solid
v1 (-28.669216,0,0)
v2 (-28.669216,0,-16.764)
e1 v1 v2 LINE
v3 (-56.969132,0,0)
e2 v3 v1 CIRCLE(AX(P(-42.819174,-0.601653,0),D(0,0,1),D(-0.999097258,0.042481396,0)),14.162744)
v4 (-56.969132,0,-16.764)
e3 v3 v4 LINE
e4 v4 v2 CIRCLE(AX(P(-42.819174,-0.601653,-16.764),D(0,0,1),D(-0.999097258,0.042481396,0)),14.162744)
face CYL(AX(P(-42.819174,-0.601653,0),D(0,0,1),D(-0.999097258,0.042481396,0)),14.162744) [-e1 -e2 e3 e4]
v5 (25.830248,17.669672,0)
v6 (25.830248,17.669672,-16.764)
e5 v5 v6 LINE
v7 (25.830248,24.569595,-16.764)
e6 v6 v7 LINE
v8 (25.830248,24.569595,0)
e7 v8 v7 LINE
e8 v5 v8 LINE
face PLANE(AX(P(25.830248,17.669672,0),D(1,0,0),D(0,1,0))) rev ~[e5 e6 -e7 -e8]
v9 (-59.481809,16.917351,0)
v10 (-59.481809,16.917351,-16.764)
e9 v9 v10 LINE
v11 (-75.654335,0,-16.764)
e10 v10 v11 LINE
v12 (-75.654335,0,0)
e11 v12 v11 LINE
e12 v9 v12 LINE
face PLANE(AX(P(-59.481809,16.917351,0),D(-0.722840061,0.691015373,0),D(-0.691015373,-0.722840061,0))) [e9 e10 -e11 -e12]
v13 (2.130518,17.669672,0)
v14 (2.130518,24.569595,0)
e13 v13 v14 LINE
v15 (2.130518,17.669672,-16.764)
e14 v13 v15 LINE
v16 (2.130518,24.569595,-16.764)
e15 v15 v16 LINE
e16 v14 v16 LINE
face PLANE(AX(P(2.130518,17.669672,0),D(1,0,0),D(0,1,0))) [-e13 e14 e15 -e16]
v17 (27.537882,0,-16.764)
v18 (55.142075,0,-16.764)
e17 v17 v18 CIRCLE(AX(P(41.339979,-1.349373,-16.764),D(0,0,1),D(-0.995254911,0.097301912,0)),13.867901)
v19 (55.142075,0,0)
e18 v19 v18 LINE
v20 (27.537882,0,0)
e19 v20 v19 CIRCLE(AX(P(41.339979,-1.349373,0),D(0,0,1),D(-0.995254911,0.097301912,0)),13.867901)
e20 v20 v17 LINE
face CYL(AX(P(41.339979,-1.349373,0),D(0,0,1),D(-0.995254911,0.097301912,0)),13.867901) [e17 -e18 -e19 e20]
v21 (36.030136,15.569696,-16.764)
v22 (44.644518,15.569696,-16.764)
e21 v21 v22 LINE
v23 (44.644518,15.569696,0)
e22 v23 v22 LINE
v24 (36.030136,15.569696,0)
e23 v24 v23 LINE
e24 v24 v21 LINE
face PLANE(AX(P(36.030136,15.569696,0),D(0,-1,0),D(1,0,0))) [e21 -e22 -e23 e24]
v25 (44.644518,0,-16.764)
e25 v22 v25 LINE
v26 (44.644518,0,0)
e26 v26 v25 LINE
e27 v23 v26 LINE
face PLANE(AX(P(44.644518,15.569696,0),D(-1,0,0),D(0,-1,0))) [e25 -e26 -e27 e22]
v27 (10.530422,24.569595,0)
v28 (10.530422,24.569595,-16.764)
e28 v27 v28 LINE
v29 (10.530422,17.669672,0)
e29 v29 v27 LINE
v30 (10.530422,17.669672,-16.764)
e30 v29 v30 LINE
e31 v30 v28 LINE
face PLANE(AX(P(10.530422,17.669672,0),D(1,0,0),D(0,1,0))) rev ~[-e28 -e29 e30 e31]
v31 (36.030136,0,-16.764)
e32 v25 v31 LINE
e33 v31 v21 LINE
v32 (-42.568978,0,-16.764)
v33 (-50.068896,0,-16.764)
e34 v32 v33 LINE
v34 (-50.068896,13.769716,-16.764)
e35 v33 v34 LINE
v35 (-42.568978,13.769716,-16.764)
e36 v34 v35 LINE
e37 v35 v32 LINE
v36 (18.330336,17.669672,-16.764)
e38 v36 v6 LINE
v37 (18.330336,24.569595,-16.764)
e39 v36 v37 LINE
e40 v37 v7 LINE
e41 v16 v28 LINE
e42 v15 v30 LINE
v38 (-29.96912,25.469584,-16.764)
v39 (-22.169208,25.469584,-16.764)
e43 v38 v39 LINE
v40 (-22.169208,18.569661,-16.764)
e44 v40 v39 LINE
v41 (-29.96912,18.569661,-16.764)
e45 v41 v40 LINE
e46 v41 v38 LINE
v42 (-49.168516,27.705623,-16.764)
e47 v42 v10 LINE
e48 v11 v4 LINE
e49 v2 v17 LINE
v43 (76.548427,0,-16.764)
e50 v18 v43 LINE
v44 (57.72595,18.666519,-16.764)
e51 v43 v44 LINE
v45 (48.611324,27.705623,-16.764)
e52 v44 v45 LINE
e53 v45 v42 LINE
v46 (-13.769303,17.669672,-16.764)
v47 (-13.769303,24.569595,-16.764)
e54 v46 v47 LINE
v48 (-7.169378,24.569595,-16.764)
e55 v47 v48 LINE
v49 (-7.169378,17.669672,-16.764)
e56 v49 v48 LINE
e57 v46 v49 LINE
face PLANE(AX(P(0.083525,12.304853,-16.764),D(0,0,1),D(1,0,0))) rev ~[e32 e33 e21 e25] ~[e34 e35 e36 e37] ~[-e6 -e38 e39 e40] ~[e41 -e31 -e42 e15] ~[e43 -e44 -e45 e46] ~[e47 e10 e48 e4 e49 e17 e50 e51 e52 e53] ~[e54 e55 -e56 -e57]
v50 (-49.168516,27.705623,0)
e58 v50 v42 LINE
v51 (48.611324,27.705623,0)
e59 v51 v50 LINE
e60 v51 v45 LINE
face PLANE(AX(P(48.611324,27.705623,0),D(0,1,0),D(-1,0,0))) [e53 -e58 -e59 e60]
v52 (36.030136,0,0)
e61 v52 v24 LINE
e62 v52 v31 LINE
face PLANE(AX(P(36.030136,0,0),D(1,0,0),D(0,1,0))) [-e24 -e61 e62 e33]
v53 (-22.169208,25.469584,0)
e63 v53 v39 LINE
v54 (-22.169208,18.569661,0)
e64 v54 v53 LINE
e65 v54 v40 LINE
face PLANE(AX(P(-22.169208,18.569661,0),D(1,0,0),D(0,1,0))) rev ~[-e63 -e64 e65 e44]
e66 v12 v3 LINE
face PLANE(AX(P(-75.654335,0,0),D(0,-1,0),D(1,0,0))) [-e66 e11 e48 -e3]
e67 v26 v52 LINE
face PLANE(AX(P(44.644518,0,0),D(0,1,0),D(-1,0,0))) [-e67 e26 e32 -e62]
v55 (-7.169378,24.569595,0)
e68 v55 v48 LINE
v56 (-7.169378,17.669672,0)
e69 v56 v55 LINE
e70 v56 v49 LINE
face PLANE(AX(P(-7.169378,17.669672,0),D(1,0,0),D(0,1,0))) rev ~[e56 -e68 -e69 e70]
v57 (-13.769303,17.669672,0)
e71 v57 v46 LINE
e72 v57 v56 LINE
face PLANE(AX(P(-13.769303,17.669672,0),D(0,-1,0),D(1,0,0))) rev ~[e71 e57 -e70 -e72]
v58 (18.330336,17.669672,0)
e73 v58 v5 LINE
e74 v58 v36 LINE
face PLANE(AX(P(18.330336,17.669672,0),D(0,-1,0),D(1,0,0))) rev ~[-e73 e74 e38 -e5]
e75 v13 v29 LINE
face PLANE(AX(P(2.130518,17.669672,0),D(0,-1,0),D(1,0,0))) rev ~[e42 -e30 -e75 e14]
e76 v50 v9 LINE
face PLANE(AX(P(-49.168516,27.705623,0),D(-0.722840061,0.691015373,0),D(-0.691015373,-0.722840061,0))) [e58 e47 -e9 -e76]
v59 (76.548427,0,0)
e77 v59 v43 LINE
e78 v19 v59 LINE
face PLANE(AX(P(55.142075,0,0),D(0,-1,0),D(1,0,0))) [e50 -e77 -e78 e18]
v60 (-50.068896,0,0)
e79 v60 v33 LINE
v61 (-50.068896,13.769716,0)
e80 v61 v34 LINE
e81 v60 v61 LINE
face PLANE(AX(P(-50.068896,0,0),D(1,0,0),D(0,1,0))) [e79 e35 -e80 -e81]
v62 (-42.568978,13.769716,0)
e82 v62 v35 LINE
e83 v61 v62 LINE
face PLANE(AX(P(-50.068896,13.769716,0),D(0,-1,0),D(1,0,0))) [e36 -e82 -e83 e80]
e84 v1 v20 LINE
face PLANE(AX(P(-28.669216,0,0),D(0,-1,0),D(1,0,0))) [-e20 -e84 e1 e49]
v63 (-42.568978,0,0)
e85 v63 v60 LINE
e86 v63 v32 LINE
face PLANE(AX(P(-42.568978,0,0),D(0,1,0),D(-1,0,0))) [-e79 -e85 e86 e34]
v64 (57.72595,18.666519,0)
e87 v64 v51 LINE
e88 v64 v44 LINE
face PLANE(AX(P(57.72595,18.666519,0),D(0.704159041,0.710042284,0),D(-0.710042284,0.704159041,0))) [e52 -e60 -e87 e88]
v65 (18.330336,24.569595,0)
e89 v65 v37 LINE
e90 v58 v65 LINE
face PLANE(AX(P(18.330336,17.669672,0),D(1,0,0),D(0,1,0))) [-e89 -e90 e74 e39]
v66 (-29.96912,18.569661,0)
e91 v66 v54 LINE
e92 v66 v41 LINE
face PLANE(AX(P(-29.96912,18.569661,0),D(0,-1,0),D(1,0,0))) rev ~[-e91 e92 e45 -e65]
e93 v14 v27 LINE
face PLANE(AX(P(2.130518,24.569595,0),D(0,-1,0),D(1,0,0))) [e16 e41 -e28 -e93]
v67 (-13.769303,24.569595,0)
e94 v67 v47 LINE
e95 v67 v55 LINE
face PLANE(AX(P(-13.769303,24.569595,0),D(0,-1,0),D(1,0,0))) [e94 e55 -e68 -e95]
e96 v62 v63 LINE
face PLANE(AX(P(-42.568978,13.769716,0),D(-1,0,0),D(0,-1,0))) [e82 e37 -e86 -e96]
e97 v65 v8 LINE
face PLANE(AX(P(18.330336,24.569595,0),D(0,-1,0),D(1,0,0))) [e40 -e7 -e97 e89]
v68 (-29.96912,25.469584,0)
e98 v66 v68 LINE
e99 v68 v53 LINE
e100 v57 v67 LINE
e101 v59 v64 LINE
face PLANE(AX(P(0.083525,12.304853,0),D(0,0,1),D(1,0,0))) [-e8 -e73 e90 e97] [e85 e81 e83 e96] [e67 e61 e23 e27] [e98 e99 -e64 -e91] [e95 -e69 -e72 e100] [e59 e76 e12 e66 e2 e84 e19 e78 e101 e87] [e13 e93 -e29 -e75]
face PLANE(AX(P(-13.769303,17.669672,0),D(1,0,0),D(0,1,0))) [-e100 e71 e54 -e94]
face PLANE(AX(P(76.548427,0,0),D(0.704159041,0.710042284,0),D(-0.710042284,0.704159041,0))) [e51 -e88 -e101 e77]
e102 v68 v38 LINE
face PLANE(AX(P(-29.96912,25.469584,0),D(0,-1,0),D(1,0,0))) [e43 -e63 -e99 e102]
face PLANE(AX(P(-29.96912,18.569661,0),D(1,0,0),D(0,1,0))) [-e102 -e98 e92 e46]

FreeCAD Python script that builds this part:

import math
import FreeCAD as App
import Part
import Sketcher
from FreeCAD import Vector
Q = App.Units.Quantity

doc = App.newDocument("Part")
params = doc.addObject("Spreadsheet::Sheet", "Params")
for row, (alias, value) in enumerate([
    ("pad1_length", "0.66 in"),
], start=1):
    params.set(f"A{row}", alias)
    params.set(f"B{row}", "=" + value)
    params.setAlias(f"B{row}", alias)

body = doc.addObject("PartDesign::Body", "Body")

sketch1 = body.newObject("Sketcher::SketchObject", "Sketch")
sketch1.AttachmentSupport = (doc.getObject("XY_Plane"), [""])
sketch1.MapMode = "FlatFace"
sketch1.addGeometry(Part.LineSegment(Vector(-59.481809, 16.917351, 0), Vector(-75.654335, 0, 0)), False)
sketch1.addGeometry(Part.LineSegment(Vector(-75.654335, 0, 0), Vector(-56.969132, 0, 0)), False)
sketch1.addGeometry(Part.ArcOfCircle(Part.Circle(Vector(-42.819174, -0.601653, 0), Vector(0, 0, 1), 14.162744), math.radians(177.565263), math.radians(362.434737)), False)
sketch1.addGeometry(Part.LineSegment(Vector(-28.669216, 0, 0), Vector(27.537882, 0, 0)), False)
sketch1.addGeometry(Part.ArcOfCircle(Part.Circle(Vector(41.339979, -1.349373, 0), Vector(0, 0, 1), 13.867901), math.radians(174.416176), math.radians(365.583824)), False)
sketch1.addGeometry(Part.LineSegment(Vector(55.142075, 0, 0), Vector(76.548427, 0, 0)), False)
sketch1.addGeometry(Part.LineSegment(Vector(76.548427, 0, 0), Vector(57.72595, 18.666519, 0)), False)
sketch1.addGeometry(Part.LineSegment(Vector(57.72595, 18.666519, 0), Vector(48.611324, 27.705623, 0)), False)
sketch1.addGeometry(Part.LineSegment(Vector(48.611324, 27.705623, 0), Vector(-49.168516, 27.705623, 0)), False)
sketch1.addGeometry(Part.LineSegment(Vector(-49.168516, 27.705623, 0), Vector(-59.481809, 16.917351, 0)), False)
sketch1.addGeometry(Part.LineSegment(Vector(-50.068896, 0, 0), Vector(-50.068896, 13.769716, 0)), False)
sketch1.addGeometry(Part.LineSegment(Vector(-50.068896, 13.769716, 0), Vector(-42.568978, 13.769716, 0)), False)
sketch1.addGeometry(Part.LineSegment(Vector(-42.568978, 13.769716, 0), Vector(-42.568978, 0, 0)), False)
sketch1.addGeometry(Part.LineSegment(Vector(-42.568978, 0, 0), Vector(-50.068896, 0, 0)), False)
sketch1.addGeometry(Part.LineSegment(Vector(36.030136, 0, 0), Vector(36.030136, 15.569696, 0)), False)
sketch1.addGeometry(Part.LineSegment(Vector(36.030136, 15.569696, 0), Vector(44.644518, 15.569696, 0)), False)
sketch1.addGeometry(Part.LineSegment(Vector(44.644518, 15.569696, 0), Vector(44.644518, 0, 0)), False)
sketch1.addGeometry(Part.LineSegment(Vector(44.644518, 0, 0), Vector(36.030136, 0, 0)), False)
sketch1.addGeometry(Part.LineSegment(Vector(-7.169378, 17.669672, 0), Vector(-13.769303, 17.669672, 0)), False)
sketch1.addGeometry(Part.LineSegment(Vector(-13.769303, 17.669672, 0), Vector(-13.769303, 24.569595, 0)), False)
sketch1.addGeometry(Part.LineSegment(Vector(-13.769303, 24.569595, 0), Vector(-7.169378, 24.569595, 0)), False)
sketch1.addGeometry(Part.LineSegment(Vector(-7.169378, 24.569595, 0), Vector(-7.169378, 17.669672, 0)), False)
sketch1.addGeometry(Part.LineSegment(Vector(10.530422, 17.669672, 0), Vector(2.130518, 17.669672, 0)), False)
sketch1.addGeometry(Part.LineSegment(Vector(2.130518, 17.669672, 0), Vector(2.130518, 24.569595, 0)), False)
sketch1.addGeometry(Part.LineSegment(Vector(2.130518, 24.569595, 0), Vector(10.530422, 24.569595, 0)), False)
sketch1.addGeometry(Part.LineSegment(Vector(10.530422, 24.569595, 0), Vector(10.530422, 17.669672, 0)), False)
sketch1.addGeometry(Part.LineSegment(Vector(25.830248, 17.669672, 0), Vector(18.330336, 17.669672, 0)), False)
sketch1.addGeometry(Part.LineSegment(Vector(18.330336, 17.669672, 0), Vector(18.330336, 24.569595, 0)), False)
sketch1.addGeometry(Part.LineSegment(Vector(18.330336, 24.569595, 0), Vector(25.830248, 24.569595, 0)), False)
sketch1.addGeometry(Part.LineSegment(Vector(25.830248, 24.569595, 0), Vector(25.830248, 17.669672, 0)), False)
sketch1.addGeometry(Part.LineSegment(Vector(-22.169208, 18.569661, 0), Vector(-29.96912, 18.569661, 0)), False)
sketch1.addGeometry(Part.LineSegment(Vector(-29.96912, 18.569661, 0), Vector(-29.96912, 25.469584, 0)), False)
sketch1.addGeometry(Part.LineSegment(Vector(-29.96912, 25.469584, 0), Vector(-22.169208, 25.469584, 0)), False)
sketch1.addGeometry(Part.LineSegment(Vector(-22.169208, 25.469584, 0), Vector(-22.169208, 18.569661, 0)), False)
sketch1.addConstraint(Sketcher.Constraint("Coincident", 0, 2, 1, 1))
sketch1.addConstraint(Sketcher.Constraint("Coincident", 1, 2, 2, 1))
sketch1.addConstraint(Sketcher.Constraint("Coincident", 2, 2, 3, 1))
sketch1.addConstraint(Sketcher.Constraint("Coincident", 3, 2, 4, 1))
sketch1.addConstraint(Sketcher.Constraint("Coincident", 4, 2, 5, 1))
sketch1.addConstraint(Sketcher.Constraint("Coincident", 5, 2, 6, 1))
sketch1.addConstraint(Sketcher.Constraint("Coincident", 6, 2, 7, 1))
sketch1.addConstraint(Sketcher.Constraint("Coincident", 7, 2, 8, 1))
sketch1.addConstraint(Sketcher.Constraint("Coincident", 8, 2, 9, 1))
sketch1.addConstraint(Sketcher.Constraint("Coincident", 9, 2, 0, 1))
sketch1.addConstraint(Sketcher.Constraint("Coincident", 10, 2, 11, 1))
sketch1.addConstraint(Sketcher.Constraint("Coincident", 11, 2, 12, 1))
sketch1.addConstraint(Sketcher.Constraint("Coincident", 12, 2, 13, 1))
sketch1.addConstraint(Sketcher.Constraint("Coincident", 13, 2, 10, 1))
sketch1.addConstraint(Sketcher.Constraint("Coincident", 14, 2, 15, 1))
sketch1.addConstraint(Sketcher.Constraint("Coincident", 15, 2, 16, 1))
sketch1.addConstraint(Sketcher.Constraint("Coincident", 16, 2, 17, 1))
sketch1.addConstraint(Sketcher.Constraint("Coincident", 17, 2, 14, 1))
sketch1.addConstraint(Sketcher.Constraint("Coincident", 18, 2, 19, 1))
sketch1.addConstraint(Sketcher.Constraint("Coincident", 19, 2, 20, 1))
sketch1.addConstraint(Sketcher.Constraint("Coincident", 20, 2, 21, 1))
sketch1.addConstraint(Sketcher.Constraint("Coincident", 21, 2, 18, 1))
sketch1.addConstraint(Sketcher.Constraint("Coincident", 22, 2, 23, 1))
sketch1.addConstraint(Sketcher.Constraint("Coincident", 23, 2, 24, 1))
sketch1.addConstraint(Sketcher.Constraint("Coincident", 24, 2, 25, 1))
sketch1.addConstraint(Sketcher.Constraint("Coincident", 25, 2, 22, 1))
sketch1.addConstraint(Sketcher.Constraint("Coincident", 26, 2, 27, 1))
sketch1.addConstraint(Sketcher.Constraint("Coincident", 27, 2, 28, 1))
sketch1.addConstraint(Sketcher.Constraint("Coincident", 28, 2, 29, 1))
sketch1.addConstraint(Sketcher.Constraint("Coincident", 29, 2, 26, 1))
sketch1.addConstraint(Sketcher.Constraint("Coincident", 30, 2, 31, 1))
sketch1.addConstraint(Sketcher.Constraint("Coincident", 31, 2, 32, 1))
sketch1.addConstraint(Sketcher.Constraint("Coincident", 32, 2, 33, 1))
sketch1.addConstraint(Sketcher.Constraint("Coincident", 33, 2, 30, 1))
sketch1.addConstraint(Sketcher.Constraint("Horizontal", 1))
sketch1.addConstraint(Sketcher.Constraint("Horizontal", 3))
sketch1.addConstraint(Sketcher.Constraint("Horizontal", 5))
sketch1.addConstraint(Sketcher.Constraint("Horizontal", 8))
sketch1.addConstraint(Sketcher.Constraint("Vertical", 10))
sketch1.addConstraint(Sketcher.Constraint("Horizontal", 11))
sketch1.addConstraint(Sketcher.Constraint("Vertical", 12))
sketch1.addConstraint(Sketcher.Constraint("Horizontal", 13))
sketch1.addConstraint(Sketcher.Constraint("Vertical", 14))
sketch1.addConstraint(Sketcher.Constraint("Horizontal", 15))
sketch1.addConstraint(Sketcher.Constraint("Vertical", 16))
sketch1.addConstraint(Sketcher.Constraint("Horizontal", 17))
sketch1.addConstraint(Sketcher.Constraint("Horizontal", 18))
sketch1.addConstraint(Sketcher.Constraint("Vertical", 19))
sketch1.addConstraint(Sketcher.Constraint("Horizontal", 20))
sketch1.addConstraint(Sketcher.Constraint("Vertical", 21))
sketch1.addConstraint(Sketcher.Constraint("Horizontal", 22))
sketch1.addConstraint(Sketcher.Constraint("Vertical", 23))
sketch1.addConstraint(Sketcher.Constraint("Horizontal", 24))
sketch1.addConstraint(Sketcher.Constraint("Vertical", 25))
sketch1.addConstraint(Sketcher.Constraint("Horizontal", 26))
sketch1.addConstraint(Sketcher.Constraint("Vertical", 27))
sketch1.addConstraint(Sketcher.Constraint("Horizontal", 28))
sketch1.addConstraint(Sketcher.Constraint("Vertical", 29))
sketch1.addConstraint(Sketcher.Constraint("Horizontal", 30))
sketch1.addConstraint(Sketcher.Constraint("Vertical", 31))
sketch1.addConstraint(Sketcher.Constraint("Horizontal", 32))
sketch1.addConstraint(Sketcher.Constraint("Vertical", 33))
sketch1.addConstraint(Sketcher.Constraint("PointOnObject", 0, 2, -1))
sketch1.addConstraint(Sketcher.Constraint("PointOnObject", 2, 2, -1))
sketch1.addConstraint(Sketcher.Constraint("PointOnObject", 4, 2, -1))
sketch1.addConstraint(Sketcher.Constraint("PointOnObject", 12, 2, -1))
sketch1.addConstraint(Sketcher.Constraint("PointOnObject", 16, 2, -1))
sketch1.addConstraint(Sketcher.Constraint("Radius", 4, 13.867901))
sketch1.addConstraint(Sketcher.Constraint("DistanceX", 8, 2, 8, 1, Q("3.8496 in")))
sketch1.addConstraint(Sketcher.Constraint("DistanceX", 3, 1, 3, 2, 56.207098))
sketch1.addConstraint(Sketcher.Constraint("Radius", 2, 14.162744))
sketch1.addConstraint(Sketcher.Constraint("DistanceX", 4, 3, 15, 2, Q("0.1301 in")))
sketch1.addConstraint(Sketcher.Constraint("DistanceX", 11, 1, 11, 2, 7.499918))
sketch1.addConstraint(Sketcher.Constraint("DistanceX", 15, 1, 15, 2, 8.614382))
sketch1.addConstraint(Sketcher.Constraint("DistanceX", 2, 3, 5, 2, 119.367601))
sketch1.addConstraint(Sketcher.Constraint("DistanceX", 8, 2, 2, 2, 20.4993))
sketch1.addConstraint(Sketcher.Constraint("DistanceX", 11, 2, 20, 2, 35.3996))
sketch1.addConstraint(Sketcher.Constraint("DistanceX", 20, 2, 24, 2, 17.699799))
sketch1.addConstraint(Sketcher.Constraint("DistanceX", 26, 2, 14, 2, 17.6998))
sketch1.addConstraint(Sketcher.Constraint("DistanceY", 14, 2, 28, 2, 8.999899))
sketch1.addConstraint(Sketcher.Constraint("Distance", 9, 14.924839))
sketch1.addConstraint(Sketcher.Constraint("DistanceX", 1, 1, 1, 2, 18.685203))
sketch1.addConstraint(Sketcher.Constraint("DistanceX", 5, 1, 5, 2, 21.406353))
sketch1.addConstraint(Sketcher.Constraint("DistanceX", 18, 2, 18, 1, 6.599926))
sketch1.addConstraint(Sketcher.Constraint("DistanceX", 22, 2, 22, 1, 8.399903))
sketch1.addConstraint(Sketcher.Constraint("DistanceX", 26, 2, 26, 1, 7.499913))
sketch1.addConstraint(Sketcher.Constraint("DistanceX", 30, 2, 30, 1, 7.799912))
sketch1.addConstraint(Sketcher.Constraint("DistanceY", 10, 1, 10, 2, 13.769716))
sketch1.addConstraint(Sketcher.Constraint("DistanceY", 14, 1, 14, 2, 15.569696))
sketch1.addConstraint(Sketcher.Constraint("DistanceY", 19, 1, 19, 2, 6.899923))
sketch1.addConstraint(Sketcher.Constraint("DistanceY", 23, 1, 23, 2, 6.899923))
sketch1.addConstraint(Sketcher.Constraint("DistanceY", 27, 1, 27, 2, 6.899923))
sketch1.addConstraint(Sketcher.Constraint("DistanceY", 31, 1, 31, 2, 6.899923))
sketch1.addConstraint(Sketcher.Constraint("DistanceX", -1, 1, 4, 3, 41.339979))
sketch1.addConstraint(Sketcher.Constraint("DistanceX", -1, 1, 6, 2, 57.72595))
sketch1.addConstraint(Sketcher.Constraint("DistanceY", -1, 1, 6, 2, 18.666519))
sketch1.addConstraint(Sketcher.Constraint("DistanceX", 9, 2, -1, 1, 59.481809))
sketch1.addConstraint(Sketcher.Constraint("DistanceY", -1, 1, 9, 2, 16.917351))
sketch1.addConstraint(Sketcher.Constraint("DistanceX", -1, 1, 22, 2, 2.130518))
sketch1.addConstraint(Sketcher.Constraint("DistanceX", 30, 2, -1, 1, 29.96912))
sketch1.addConstraint(Sketcher.Constraint("DistanceY", -1, 1, 30, 2, 18.569661))
sketch1.addConstraint(Sketcher.Constraint("DistanceY", 4, 3, 2, 3, 0.74772))
sketch1.addConstraint(Sketcher.Constraint("DistanceY", 11, 2, 19, 2, 10.799879))
sketch1.addConstraint(Sketcher.Constraint("DistanceY", -1, 1, 22, 2, 17.669672))
pad1 = body.newObject("PartDesign::Pad", "Pad")
pad1.Profile = sketch1
pad1.setExpression("Length", "Params.pad1_length")
pad1.Reversed = True

doc.recompute()
